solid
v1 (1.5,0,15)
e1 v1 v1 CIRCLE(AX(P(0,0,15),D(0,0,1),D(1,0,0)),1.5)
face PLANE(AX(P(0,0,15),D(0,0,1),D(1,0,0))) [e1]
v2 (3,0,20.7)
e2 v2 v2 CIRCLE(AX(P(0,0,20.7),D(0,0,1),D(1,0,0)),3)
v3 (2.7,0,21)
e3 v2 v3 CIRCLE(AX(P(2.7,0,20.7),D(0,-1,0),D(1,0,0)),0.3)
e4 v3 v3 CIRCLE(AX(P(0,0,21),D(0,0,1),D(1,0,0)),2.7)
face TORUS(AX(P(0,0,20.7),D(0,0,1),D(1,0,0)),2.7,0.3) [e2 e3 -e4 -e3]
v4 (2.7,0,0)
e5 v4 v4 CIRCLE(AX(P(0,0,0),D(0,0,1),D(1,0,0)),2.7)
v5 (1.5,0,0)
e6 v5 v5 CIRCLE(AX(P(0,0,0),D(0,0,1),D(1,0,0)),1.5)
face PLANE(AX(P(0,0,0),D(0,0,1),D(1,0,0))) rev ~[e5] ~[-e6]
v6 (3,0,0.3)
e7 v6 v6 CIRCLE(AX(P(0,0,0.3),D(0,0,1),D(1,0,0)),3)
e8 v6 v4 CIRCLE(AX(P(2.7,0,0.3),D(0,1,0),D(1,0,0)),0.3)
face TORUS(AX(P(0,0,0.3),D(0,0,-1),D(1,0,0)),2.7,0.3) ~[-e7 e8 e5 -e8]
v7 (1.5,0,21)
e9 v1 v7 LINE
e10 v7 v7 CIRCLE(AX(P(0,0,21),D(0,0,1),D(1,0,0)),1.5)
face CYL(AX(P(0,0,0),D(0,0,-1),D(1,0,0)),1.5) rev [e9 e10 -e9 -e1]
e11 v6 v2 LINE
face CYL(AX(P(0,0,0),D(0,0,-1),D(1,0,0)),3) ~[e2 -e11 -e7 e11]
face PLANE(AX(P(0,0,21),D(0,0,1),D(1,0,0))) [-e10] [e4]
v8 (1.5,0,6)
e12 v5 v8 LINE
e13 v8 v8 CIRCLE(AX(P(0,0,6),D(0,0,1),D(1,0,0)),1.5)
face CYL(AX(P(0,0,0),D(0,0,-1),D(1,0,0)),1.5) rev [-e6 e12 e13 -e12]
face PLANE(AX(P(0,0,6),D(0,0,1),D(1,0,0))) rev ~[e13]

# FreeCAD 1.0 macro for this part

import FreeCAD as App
import Part
import Sketcher
Q = App.Units.Quantity


def edges_at(feature, points):
    """Names of the edges that pass closest to the given points."""
    edges = feature.Shape.Edges
    near = lambda p: min(range(len(edges)), key=lambda i: edges[i].distToShape(Part.Vertex(*p))[0])
    return sorted({f"Edge{near(p) + 1}" for p in points})

doc = App.newDocument("Part")
body = doc.addObject("PartDesign::Body", "Body")

sketch1 = body.newObject("Sketcher::SketchObject", "Sketch")
sketch1.AttachmentSupport = (doc.getObject("XY_Plane"), [""])
sketch1.MapMode = "FlatFace"
sketch1.addGeometry([
    Part.Circle(App.Vector(0, 0, 0), App.Vector(0, 0, 1), 3),
    Part.Circle(App.Vector(0, 0, 0), App.Vector(0, 0, 1), 1.5),
], False)
sketch1.addConstraint([
    Sketcher.Constraint("Coincident", 0, 3, -1, 1),
    Sketcher.Constraint("Coincident", 1, 3, -1, 1),
    Sketcher.Constraint("Diameter", 0, Q("6 mm")),
    Sketcher.Constraint("Diameter", 1, Q("3 mm")),
])
pad1 = body.newObject("PartDesign::Pad", "Pad")
pad1.Profile = sketch1
pad1.Length = 21
doc.recompute()

fillet = body.newObject("PartDesign::Fillet", "Fillet")
fillet.Base = (pad1, edges_at(pad1, [(-3, 0, 21), (-3, 0, 0)]))
fillet.Radius = 0.3

sketch2 = body.newObject("Sketcher::SketchObject", "Sketch001")
sketch2.AttachmentSupport = (doc.getObject("XY_Plane"), [""])
sketch2.MapMode = "FlatFace"
sketch2.addGeometry(Part.Circle(App.Vector(0, 0, 0), App.Vector(0, 0, 1), 1.5), False)
sketch2.addConstraint([
    Sketcher.Constraint("Coincident", 0, 3, -1, 1),
    Sketcher.Constraint("Diameter", 0, Q("3 mm")),
])
pad2 = body.newObject("PartDesign::Pad", "Pad001")
pad2.Profile = sketch2
pad2.Length = 15

sketch3 = body.newObject("Sketcher::SketchObject", "Sketch002")
sketch3.AttachmentSupport = (doc.getObject("XY_Plane"), [""])
sketch3.MapMode = "FlatFace"
sketch3.addGeometry(Part.Circle(App.Vector(0, 0, 0), App.Vector(0, 0, 1), 1.5), False)
sketch3.addConstraint([
    Sketcher.Constraint("Coincident", 0, 3, -1, 1),
    Sketcher.Constraint("Diameter", 0, Q("3 mm")),
])
pocket1 = body.newObject("PartDesign::Pocket", "Pocket")
pocket1.Profile = sketch3
pocket1.Length = 6
pocket1.Reversed = True

doc.recompute()
